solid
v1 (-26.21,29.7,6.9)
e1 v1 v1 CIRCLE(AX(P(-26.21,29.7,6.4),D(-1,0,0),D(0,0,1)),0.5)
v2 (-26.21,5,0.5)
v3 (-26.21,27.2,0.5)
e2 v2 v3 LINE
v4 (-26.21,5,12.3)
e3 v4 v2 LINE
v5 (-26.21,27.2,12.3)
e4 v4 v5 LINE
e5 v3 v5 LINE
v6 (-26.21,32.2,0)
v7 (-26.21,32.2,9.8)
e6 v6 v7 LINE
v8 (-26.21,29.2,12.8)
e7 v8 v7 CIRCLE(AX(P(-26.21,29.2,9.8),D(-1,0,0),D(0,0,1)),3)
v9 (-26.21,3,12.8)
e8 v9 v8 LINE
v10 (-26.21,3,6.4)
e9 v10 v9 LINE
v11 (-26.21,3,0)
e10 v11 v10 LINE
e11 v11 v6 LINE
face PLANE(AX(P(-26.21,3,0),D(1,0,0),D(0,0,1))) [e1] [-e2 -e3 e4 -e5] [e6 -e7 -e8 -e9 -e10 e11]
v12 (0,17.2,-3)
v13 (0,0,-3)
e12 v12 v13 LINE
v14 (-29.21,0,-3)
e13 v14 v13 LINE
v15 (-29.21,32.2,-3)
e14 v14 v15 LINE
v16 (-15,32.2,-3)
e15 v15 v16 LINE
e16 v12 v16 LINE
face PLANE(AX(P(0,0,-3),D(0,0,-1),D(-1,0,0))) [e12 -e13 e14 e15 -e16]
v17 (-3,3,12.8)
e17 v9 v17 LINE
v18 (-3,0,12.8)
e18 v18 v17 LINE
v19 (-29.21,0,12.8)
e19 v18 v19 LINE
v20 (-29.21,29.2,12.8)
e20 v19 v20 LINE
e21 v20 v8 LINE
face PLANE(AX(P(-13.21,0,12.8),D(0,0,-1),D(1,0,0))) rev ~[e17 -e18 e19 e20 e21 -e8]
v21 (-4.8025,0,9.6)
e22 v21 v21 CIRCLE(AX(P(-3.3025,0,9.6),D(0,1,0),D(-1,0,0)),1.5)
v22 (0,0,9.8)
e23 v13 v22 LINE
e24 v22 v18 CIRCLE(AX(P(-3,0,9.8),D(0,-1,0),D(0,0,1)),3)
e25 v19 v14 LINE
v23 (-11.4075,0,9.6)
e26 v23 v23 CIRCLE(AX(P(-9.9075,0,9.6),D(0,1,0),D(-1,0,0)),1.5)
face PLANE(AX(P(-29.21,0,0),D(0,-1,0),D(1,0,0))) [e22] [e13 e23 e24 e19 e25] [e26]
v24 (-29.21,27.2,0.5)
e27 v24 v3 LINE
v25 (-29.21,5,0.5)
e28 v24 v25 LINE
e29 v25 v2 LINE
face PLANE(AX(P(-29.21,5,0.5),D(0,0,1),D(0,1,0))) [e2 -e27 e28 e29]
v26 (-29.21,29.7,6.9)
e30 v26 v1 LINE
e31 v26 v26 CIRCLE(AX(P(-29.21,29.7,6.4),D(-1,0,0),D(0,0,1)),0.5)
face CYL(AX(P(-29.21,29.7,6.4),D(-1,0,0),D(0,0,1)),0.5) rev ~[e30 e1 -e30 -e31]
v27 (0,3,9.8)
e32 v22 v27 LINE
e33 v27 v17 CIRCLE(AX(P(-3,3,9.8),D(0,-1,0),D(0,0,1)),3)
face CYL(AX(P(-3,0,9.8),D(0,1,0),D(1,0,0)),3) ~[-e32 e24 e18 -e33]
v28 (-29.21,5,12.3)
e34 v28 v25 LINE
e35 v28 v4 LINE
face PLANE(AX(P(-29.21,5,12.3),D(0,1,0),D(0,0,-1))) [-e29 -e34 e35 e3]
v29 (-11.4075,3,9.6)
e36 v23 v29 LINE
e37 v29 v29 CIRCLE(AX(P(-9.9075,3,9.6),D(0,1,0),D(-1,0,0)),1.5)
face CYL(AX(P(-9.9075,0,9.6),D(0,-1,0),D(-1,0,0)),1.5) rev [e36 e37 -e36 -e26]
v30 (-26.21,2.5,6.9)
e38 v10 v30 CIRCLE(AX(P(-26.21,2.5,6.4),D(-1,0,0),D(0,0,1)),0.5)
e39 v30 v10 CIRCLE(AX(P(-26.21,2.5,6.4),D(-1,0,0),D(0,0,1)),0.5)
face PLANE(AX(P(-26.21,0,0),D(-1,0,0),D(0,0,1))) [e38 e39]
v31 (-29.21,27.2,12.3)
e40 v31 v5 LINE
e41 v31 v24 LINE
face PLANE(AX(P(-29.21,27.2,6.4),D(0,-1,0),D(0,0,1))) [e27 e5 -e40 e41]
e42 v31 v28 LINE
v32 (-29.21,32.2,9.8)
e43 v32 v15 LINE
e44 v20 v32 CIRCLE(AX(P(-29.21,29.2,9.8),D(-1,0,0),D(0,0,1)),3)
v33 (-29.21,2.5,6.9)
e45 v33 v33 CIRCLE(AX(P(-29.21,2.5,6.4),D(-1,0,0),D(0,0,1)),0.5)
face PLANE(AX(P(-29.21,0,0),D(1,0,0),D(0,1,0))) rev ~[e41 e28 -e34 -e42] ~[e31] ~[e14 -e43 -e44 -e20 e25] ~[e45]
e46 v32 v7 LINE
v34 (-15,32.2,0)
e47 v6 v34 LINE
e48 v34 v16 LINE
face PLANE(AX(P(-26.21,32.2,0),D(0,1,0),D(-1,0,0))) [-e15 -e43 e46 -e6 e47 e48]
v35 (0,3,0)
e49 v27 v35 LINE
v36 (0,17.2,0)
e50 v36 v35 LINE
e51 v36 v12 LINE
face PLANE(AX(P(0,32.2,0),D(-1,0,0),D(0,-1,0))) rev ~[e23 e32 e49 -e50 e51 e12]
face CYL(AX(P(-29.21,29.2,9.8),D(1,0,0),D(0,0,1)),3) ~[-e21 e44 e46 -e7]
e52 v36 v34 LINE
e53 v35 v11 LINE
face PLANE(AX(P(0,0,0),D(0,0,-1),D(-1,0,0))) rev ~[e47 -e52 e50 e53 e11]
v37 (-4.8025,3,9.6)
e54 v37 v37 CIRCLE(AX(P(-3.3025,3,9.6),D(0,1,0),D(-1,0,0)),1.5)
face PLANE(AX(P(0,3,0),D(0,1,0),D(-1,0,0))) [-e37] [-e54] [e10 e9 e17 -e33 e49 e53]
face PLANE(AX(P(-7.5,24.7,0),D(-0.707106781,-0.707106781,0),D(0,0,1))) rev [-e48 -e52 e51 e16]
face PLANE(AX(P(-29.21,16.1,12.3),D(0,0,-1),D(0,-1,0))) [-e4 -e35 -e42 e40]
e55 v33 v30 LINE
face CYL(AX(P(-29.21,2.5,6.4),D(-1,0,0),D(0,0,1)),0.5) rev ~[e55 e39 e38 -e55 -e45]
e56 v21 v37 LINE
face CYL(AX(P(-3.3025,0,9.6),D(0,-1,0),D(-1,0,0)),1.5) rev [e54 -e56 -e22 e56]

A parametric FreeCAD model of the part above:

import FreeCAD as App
import Part
import Sketcher
from FreeCAD import Vector


def edges_at(feature, points):
    """Names of the edges that pass closest to the given points."""
    edges = feature.Shape.Edges
    near = lambda p: min(range(len(edges)), key=lambda i: edges[i].distToShape(Part.Vertex(*p))[0])
    return sorted({f"Edge{near(p) + 1}" for p in points})

doc = App.newDocument("Part")
body = doc.addObject("PartDesign::Body", "Body")

# Sketch on XZ plane
sketch1 = doc.addObject("Sketcher::SketchObject", "Sketch")
body.addObject(sketch1)
sketch1.AttachmentSupport = (doc.XZ_Plane, [""])
sketch1.MapMode = "FlatFace"
sketch1.addGeometry(Part.LineSegment(Vector(0, 0, 0), Vector(-29.2, 0, 0)), False)
sketch1.addGeometry(Part.LineSegment(Vector(-29.2, 0, 0), Vector(-29.2, 12.8, 0)), False)
sketch1.addGeometry(Part.LineSegment(Vector(-29.2, 12.8, 0), Vector(0, 12.8, 0)), False)
sketch1.addGeometry(Part.LineSegment(Vector(0, 12.8, 0), Vector(0, 0, 0)), False)
sketch1.addGeometry(Part.Circle(Vector(-3.3, 9.6, 0), Vector(0, 0, 1), 1.5), False)
sketch1.addGeometry(Part.Circle(Vector(-9.9, 9.6, 0), Vector(0, 0, 1), 1.5), False)
sketch1.addConstraint(Sketcher.Constraint("Coincident", 0, 2, 1, 1))
sketch1.addConstraint(Sketcher.Constraint("Coincident", 1, 2, 2, 1))
sketch1.addConstraint(Sketcher.Constraint("Coincident", 2, 2, 3, 1))
sketch1.addConstraint(Sketcher.Constraint("Coincident", 3, 2, 0, 1))
sketch1.addConstraint(Sketcher.Constraint("Horizontal", 0))
sketch1.addConstraint(Sketcher.Constraint("Vertical", 1))
sketch1.addConstraint(Sketcher.Constraint("Horizontal", 2))
sketch1.addConstraint(Sketcher.Constraint("Vertical", 3))
sketch1.addConstraint(Sketcher.Constraint("Coincident", 3, 2, -1, 1))
sketch1.addConstraint(Sketcher.Constraint("Equal", 4, 5))
sketch1.addConstraint(Sketcher.Constraint("Horizontal", 4, 3, 5, 3))
sketch1.addConstraint(Sketcher.Constraint("Diameter", 4, 3.0))
sketch1.addConstraint(Sketcher.Constraint("DistanceY", 1, 1, 1, 2, 12.8))
sketch1.addConstraint(Sketcher.Constraint("DistanceX", 0, 2, 0, 1, 29.21))
sketch1.addConstraint(Sketcher.Constraint("DistanceY", -1, 1, 4, 3, 9.6))
sketch1.addConstraint(Sketcher.Constraint("DistanceX", 5, 3, 4, 3, 6.605))
sketch1.addConstraint(Sketcher.Constraint("DistanceX", 4, 3, -1, 1, 3.3025))
pad1 = doc.addObject("PartDesign::Pad", "Pad")
body.addObject(pad1)
pad1.Profile = sketch1
pad1.Length = 3
pad1.Reversed = True

# Sketch on XZ plane
sketch2 = doc.addObject("Sketcher::SketchObject", "Sketch001")
body.addObject(sketch2)
sketch2.AttachmentSupport = (doc.XZ_Plane, [""])
sketch2.MapMode = "FlatFace"
sketch2.AttachmentOffset = App.Placement(Vector(0, 0, -3), App.Rotation())
sketch2.addGeometry(Part.LineSegment(Vector(-26.2, 12.8, 0), Vector(-26.2, 0, 0)), False)
sketch2.addGeometry(Part.LineSegment(Vector(-26.2, 0, 0), Vector(-29.2, 0, 0)), False)
sketch2.addGeometry(Part.LineSegment(Vector(-29.2, 0, 0), Vector(-29.2, 12.8, 0)), False)
sketch2.addGeometry(Part.LineSegment(Vector(-29.2, 12.8, 0), Vector(-26.2, 12.8, 0)), False)
sketch2.addConstraint(Sketcher.Constraint("Coincident", 0, 2, 1, 1))
sketch2.addConstraint(Sketcher.Constraint("Coincident", 1, 2, 2, 1))
sketch2.addConstraint(Sketcher.Constraint("Coincident", 2, 2, 3, 1))
sketch2.addConstraint(Sketcher.Constraint("Coincident", 3, 2, 0, 1))
sketch2.addConstraint(Sketcher.Constraint("Vertical", 0))
sketch2.addConstraint(Sketcher.Constraint("Horizontal", 1))
sketch2.addConstraint(Sketcher.Constraint("Vertical", 2))
sketch2.addConstraint(Sketcher.Constraint("Horizontal", 3))
sketch2.addConstraint(Sketcher.Constraint("PointOnObject", 0, 2, -1))
sketch2.addConstraint(Sketcher.Constraint("DistanceX", 1, 2, 1, 1, 3.0))
sketch2.addConstraint(Sketcher.Constraint("DistanceY", 0, 2, 0, 1, 12.8))
sketch2.addConstraint(Sketcher.Constraint("DistanceX", 0, 2, -1, 1, 26.21))
pad2 = doc.addObject("PartDesign::Pad", "Pad001")
body.addObject(pad2)
pad2.Profile = sketch2
pad2.Length = 29.2
pad2.Reversed = True

# Sketch on YZ plane
sketch3 = doc.addObject("Sketcher::SketchObject", "Sketch002")
body.addObject(sketch3)
sketch3.AttachmentSupport = (doc.YZ_Plane, [""])
sketch3.MapMode = "FlatFace"
sketch3.AttachmentOffset = App.Placement(Vector(0, 0, -29.21), App.Rotation())
sketch3.addGeometry(Part.LineSegment(Vector(5, 12.3, 0), Vector(27.2, 12.3, 0)), False)
sketch3.addGeometry(Part.LineSegment(Vector(27.2, 12.3, 0), Vector(27.2, 0.5, 0)), False)
sketch3.addGeometry(Part.LineSegment(Vector(27.2, 0.5, 0), Vector(5, 0.5, 0)), False)
sketch3.addGeometry(Part.LineSegment(Vector(5, 0.5, 0), Vector(5, 12.3, 0)), False)
sketch3.addGeometry(Part.Circle(Vector(2.5, 6.4, 0), Vector(0, 0, 1), 0.5), False)
sketch3.addGeometry(Part.Circle(Vector(29.7, 6.4, 0), Vector(0, 0, 1), 0.5), False)
sketch3.addConstraint(Sketcher.Constraint("Coincident", 0, 2, 1, 1))
sketch3.addConstraint(Sketcher.Constraint("Coincident", 1, 2, 2, 1))
sketch3.addConstraint(Sketcher.Constraint("Coincident", 2, 2, 3, 1))
sketch3.addConstraint(Sketcher.Constraint("Coincident", 3, 2, 0, 1))
sketch3.addConstraint(Sketcher.Constraint("Horizontal", 0))
sketch3.addConstraint(Sketcher.Constraint("Vertical", 1))
sketch3.addConstraint(Sketcher.Constraint("Horizontal", 2))
sketch3.addConstraint(Sketcher.Constraint("Vertical", 3))
sketch3.addConstraint(Sketcher.Constraint("Equal", 4, 5))
sketch3.addConstraint(Sketcher.Constraint("Horizontal", 4, 3, 5, 3))
sketch3.addConstraint(Sketcher.Constraint("Diameter", 4, 1.0))
sketch3.addConstraint(Sketcher.Constraint("DistanceY", 1, 2, 1, 1, 11.8))
sketch3.addConstraint(Sketcher.Constraint("DistanceY", 5, 3, 0, 2, 5.9))
sketch3.addConstraint(Sketcher.Constraint("DistanceX", 0, 1, 0, 2, 22.2))
sketch3.addConstraint(Sketcher.Constraint("DistanceX", -1, 1, 2, 2, 5.0))
sketch3.addConstraint(Sketcher.Constraint("DistanceX", -1, 1, 4, 3, 2.5))
sketch3.addConstraint(Sketcher.Constraint("DistanceY", -1, 1, 4, 3, 6.4))
sketch3.addConstraint(Sketcher.Constraint("DistanceX", -1, 1, 5, 3, 29.7))
pocket1 = doc.addObject("PartDesign::Pocket", "Pocket")
body.addObject(pocket1)
pocket1.Profile = sketch3
pocket1.Length = 3
pocket1.Reversed = True

# Sketch on XY plane
sketch4 = doc.addObject("Sketcher::SketchObject", "Sketch003")
body.addObject(sketch4)
sketch4.AttachmentSupport = (doc.XY_Plane, [""])
sketch4.MapMode = "FlatFace"
sketch4.addGeometry(Part.LineSegment(Vector(0, 0, 0), Vector(-29, 0, 0)), False)
sketch4.addGeometry(Part.LineSegment(Vector(-29, 0, 0), Vector(-29, 32, 0)), False)
sketch4.addGeometry(Part.LineSegment(Vector(-29, 32, 0), Vector(0, 32, 0)), False)
sketch4.addGeometry(Part.LineSegment(Vector(0, 32, 0), Vector(0, 0, 0)), False)
sketch4.addConstraint(Sketcher.Constraint("Coincident", 0, 2, 1, 1))
sketch4.addConstraint(Sketcher.Constraint("Coincident", 1, 2, 2, 1))
sketch4.addConstraint(Sketcher.Constraint("Coincident", 2, 2, 3, 1))
sketch4.addConstraint(Sketcher.Constraint("Coincident", 3, 2, 0, 1))
sketch4.addConstraint(Sketcher.Constraint("Horizontal", 0))
sketch4.addConstraint(Sketcher.Constraint("Vertical", 1))
sketch4.addConstraint(Sketcher.Constraint("Horizontal", 2))
sketch4.addConstraint(Sketcher.Constraint("Vertical", 3))
sketch4.addConstraint(Sketcher.Constraint("Coincident", 3, 2, -1, 1))
sketch4.addConstraint(Sketcher.Constraint("DistanceY", 1, 1, 1, 2, 32.2))
sketch4.addConstraint(Sketcher.Constraint("DistanceX", 0, 2, 0, 1, 29.21))
pad3 = doc.addObject("PartDesign::Pad", "Pad002")
body.addObject(pad3)
pad3.Profile = sketch4
pad3.Length = 3
pad3.Reversed = True
doc.recompute()

chamfer = doc.addObject("PartDesign::Chamfer", "Chamfer")
body.addObject(chamfer)
chamfer.Base = (pad3, edges_at(pad3, [(0, 32.2, -1.5)]))
chamfer.Size = 15
doc.recompute()

fillet = doc.addObject("PartDesign::Fillet", "Fillet")
body.addObject(fillet)
fillet.Base = (chamfer, edges_at(chamfer, [(0, 1.5, 12.8), (-27.71, 32.2, 12.8)]))
fillet.Radius = 3

doc.recompute()
